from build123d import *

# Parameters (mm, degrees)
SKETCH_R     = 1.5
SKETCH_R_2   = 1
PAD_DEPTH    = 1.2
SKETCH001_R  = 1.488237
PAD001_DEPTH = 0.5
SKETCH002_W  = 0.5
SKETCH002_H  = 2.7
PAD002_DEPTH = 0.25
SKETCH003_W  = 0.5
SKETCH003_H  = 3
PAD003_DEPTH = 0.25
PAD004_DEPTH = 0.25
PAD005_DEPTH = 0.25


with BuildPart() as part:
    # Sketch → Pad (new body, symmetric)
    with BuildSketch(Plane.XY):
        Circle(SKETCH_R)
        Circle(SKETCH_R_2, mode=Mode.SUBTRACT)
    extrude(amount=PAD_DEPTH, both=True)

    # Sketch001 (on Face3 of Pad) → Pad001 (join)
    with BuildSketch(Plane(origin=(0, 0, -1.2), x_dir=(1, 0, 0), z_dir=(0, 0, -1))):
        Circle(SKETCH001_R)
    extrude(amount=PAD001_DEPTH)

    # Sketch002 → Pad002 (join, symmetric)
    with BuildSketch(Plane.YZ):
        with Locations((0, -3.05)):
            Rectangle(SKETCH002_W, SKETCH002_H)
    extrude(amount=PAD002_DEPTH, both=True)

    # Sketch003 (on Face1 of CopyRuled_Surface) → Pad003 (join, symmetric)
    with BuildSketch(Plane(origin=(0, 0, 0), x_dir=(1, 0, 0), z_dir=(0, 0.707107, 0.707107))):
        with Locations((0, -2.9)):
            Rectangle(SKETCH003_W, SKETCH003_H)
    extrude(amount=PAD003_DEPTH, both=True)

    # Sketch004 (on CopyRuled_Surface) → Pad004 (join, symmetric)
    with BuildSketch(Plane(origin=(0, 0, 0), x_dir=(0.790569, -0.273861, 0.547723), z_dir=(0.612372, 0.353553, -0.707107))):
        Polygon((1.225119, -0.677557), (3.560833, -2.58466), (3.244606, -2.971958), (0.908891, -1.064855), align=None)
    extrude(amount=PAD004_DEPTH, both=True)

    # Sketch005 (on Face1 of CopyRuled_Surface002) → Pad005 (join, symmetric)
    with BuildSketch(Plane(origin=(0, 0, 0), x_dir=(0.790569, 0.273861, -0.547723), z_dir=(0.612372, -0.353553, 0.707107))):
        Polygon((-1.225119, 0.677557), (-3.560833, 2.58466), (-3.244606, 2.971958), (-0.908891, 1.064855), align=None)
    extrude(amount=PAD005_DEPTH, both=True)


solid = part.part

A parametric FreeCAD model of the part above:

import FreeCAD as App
import Part
import Sketcher
from FreeCAD import Vector
Q = App.Units.Quantity


def add_polygon(sketch, points):
    """Adds a closed chain of lines whose ends are joined by coincident constraints."""
    first, n = sketch.GeometryCount, len(points)
    for a, b in zip(points, points[1:] + points[:1]):
        sketch.addGeometry(Part.LineSegment(App.Vector(*a, 0), App.Vector(*b, 0)), False)
    for i in range(n):
        sketch.addConstraint(Sketcher.Constraint("Coincident", first + i, 2, first + (i + 1) % n, 1))

doc = App.newDocument("Part")
body = doc.addObject("PartDesign::Body", "Body")

# Sketch on XY plane
sketch1 = doc.addObject("Sketcher::SketchObject", "Sketch")
body.addObject(sketch1)
sketch1.AttachmentSupport = (doc.XY_Plane, [""])
sketch1.MapMode = "FlatFace"
sketch1.addGeometry([
    Part.Circle(Vector(0, 0, 0), Vector(0, 0, 1), 1.5),
    Part.Circle(Vector(0, 0, 0), Vector(0, 0, 1), 1),
], False)
sketch1.addConstraint([
    Sketcher.Constraint("Coincident", 0, 3, -1, 1),
    Sketcher.Constraint("Coincident", 1, 3, -1, 1),
    Sketcher.Constraint("Diameter", 0, Q("3 mm")),
    Sketcher.Constraint("Diameter", 1, Q("2 mm")),
])
pad1 = doc.addObject("PartDesign::Pad", "Pad")
body.addObject(pad1)
pad1.Profile = sketch1
pad1.Length = 2.4
pad1.Midplane = True

# Sketch on XY plane
sketch2 = doc.addObject("Sketcher::SketchObject", "Sketch001")
body.addObject(sketch2)
sketch2.AttachmentSupport = (doc.XY_Plane, [""])
sketch2.MapMode = "FlatFace"
sketch2.AttachmentOffset = App.Placement(Vector(0, 0, -1.2), App.Rotation())
sketch2.addGeometry(Part.Circle(Vector(0, 0, 0), Vector(0, 0, 1), 1.5), False)
sketch2.addConstraint([
    Sketcher.Constraint("Coincident", 0, 3, -1, 1),
    Sketcher.Constraint("Diameter", 0, Q("2.976474 mm")),
])
pad2 = doc.addObject("PartDesign::Pad", "Pad001")
body.addObject(pad2)
pad2.Profile = sketch2
pad2.Length = 0.5
pad2.Reversed = True

# Sketch on YZ plane
sketch3 = doc.addObject("Sketcher::SketchObject", "Sketch002")
body.addObject(sketch3)
sketch3.AttachmentSupport = (doc.YZ_Plane, [""])
sketch3.MapMode = "FlatFace"
add_polygon(sketch3, [(-0.2, -1.7), (-0.2, -4.4), (0.2, -4.4), (0.2, -1.7)])  # lines 0-3
sketch3.addConstraint([
    Sketcher.Constraint("Vertical", 0),
    Sketcher.Constraint("Horizontal", 1),
    Sketcher.Constraint("Vertical", 2),
    Sketcher.Constraint("Horizontal", 3),
    Sketcher.Constraint("DistanceX", 1, 1, 1, 2, Q("0.5 mm")),
    Sketcher.Constraint("DistanceY", 0, 2, 0, 1, Q("2.7 mm")),
    Sketcher.Constraint("DistanceY", 0, 2, -1, 1, Q("4.4 mm")),
    Sketcher.Constraint("DistanceX", 0, 2, -1, 1, Q("0.25 mm")),
])
pad3 = doc.addObject("PartDesign::Pad", "Pad002")
body.addObject(pad3)
pad3.Profile = sketch3
pad3.Length = 0.5
pad3.Midplane = True

# Sketch on an angled plane
sketch4 = doc.addObject("Sketcher::SketchObject", "Sketch003")
body.addObject(sketch4)
sketch4.Placement = App.Placement(Vector(0, 0, 0), App.Rotation(Vector(1, 0, 0), Vector(0, 0.707106781, -0.707106781), Vector(0, 0.707106781, 0.707106781), "ZXY"))
add_polygon(sketch4, [(-0.2, -1.4), (-0.2, -4.4), (0.2, -4.4), (0.2, -1.4)])  # lines 0-3
sketch4.addConstraint([
    Sketcher.Constraint("Vertical", 0),
    Sketcher.Constraint("Horizontal", 1),
    Sketcher.Constraint("Vertical", 2),
    Sketcher.Constraint("Horizontal", 3),
    Sketcher.Constraint("DistanceY", 0, 2, 0, 1, Q("3 mm")),
    Sketcher.Constraint("DistanceX", 1, 1, 1, 2, Q("0.5 mm")),
    Sketcher.Constraint("DistanceY", 0, 2, -1, 1, Q("4.4 mm")),
    Sketcher.Constraint("DistanceX", 0, 2, -1, 1, Q("0.25 mm")),
])
pad4 = doc.addObject("PartDesign::Pad", "Pad003")
body.addObject(pad4)
pad4.Profile = sketch4
pad4.Length = 0.5
pad4.Midplane = True

# Sketch on an angled plane
sketch5 = doc.addObject("Sketcher::SketchObject", "Sketch004")
body.addObject(sketch5)
sketch5.Placement = App.Placement(Vector(0, 0, 0), App.Rotation(Vector(0.790569634, -0.273860752, 0.547722505), Vector(0.00000008, -0.894427472, -0.447213034), Vector(0.612372153, 0.353553088, -0.707107177), "ZXY"))
add_polygon(sketch5, [(3.56, -2.58), (1.23, -0.68), (0.91, -1.06), (3.24, -2.97)])  # lines 0-3
sketch5.addConstraint([
    Sketcher.Constraint("Perpendicular", 0, 1),
    Sketcher.Constraint("Perpendicular", 1, 2),
    Sketcher.Constraint("Perpendicular", 2, 3),
    Sketcher.Constraint("Distance", 1, Q("0.5 mm")),
    Sketcher.Constraint("DistanceY", 1, 2, 0, 2, Q("0.387298 mm")),
    Sketcher.Constraint("DistanceY", 2, 2, 0, 2, Q("2.294401 mm")),
    Sketcher.Constraint("DistanceX", -1, 1, 0, 2, Q("1.225119 mm")),
    Sketcher.Constraint("DistanceY", 3, 2, -1, 1, Q("2.58466 mm")),
])
pad5 = doc.addObject("PartDesign::Pad", "Pad004")
body.addObject(pad5)
pad5.Profile = sketch5
pad5.Length = 0.5
pad5.Midplane = True

# Sketch on an angled plane
sketch6 = doc.addObject("Sketcher::SketchObject", "Sketch005")
body.addObject(sketch6)
sketch6.Placement = App.Placement(Vector(0, 0, 0), App.Rotation(Vector(0.790569634, 0.273860752, -0.547722505), Vector(0.00000008, 0.894427472, 0.447213034), Vector(0.612372153, -0.353553088, 0.707107177), "ZXY"))
add_polygon(sketch6, [(-3.56, 2.58), (-1.23, 0.68), (-0.91, 1.06), (-3.24, 2.97)])  # lines 0-3
sketch6.addConstraint([
    Sketcher.Constraint("Perpendicular", 0, 1),
    Sketcher.Constraint("Perpendicular", 1, 2),
    Sketcher.Constraint("Perpendicular", 2, 3),
    Sketcher.Constraint("Distance", 1, Q("0.5 mm")),
    Sketcher.Constraint("DistanceY", 0, 2, 1, 2, Q("0.387298 mm")),
    Sketcher.Constraint("DistanceY", 0, 2, 2, 2, Q("2.294401 mm")),
    Sketcher.Constraint("DistanceX", 0, 2, -1, 1, Q("1.225119 mm")),
    Sketcher.Constraint("DistanceY", -1, 1, 3, 2, Q("2.58466 mm")),
])
pad6 = doc.addObject("PartDesign::Pad", "Pad005")
body.addObject(pad6)
pad6.Profile = sketch6
pad6.Length = 0.5
pad6.Midplane = True

doc.recompute()
